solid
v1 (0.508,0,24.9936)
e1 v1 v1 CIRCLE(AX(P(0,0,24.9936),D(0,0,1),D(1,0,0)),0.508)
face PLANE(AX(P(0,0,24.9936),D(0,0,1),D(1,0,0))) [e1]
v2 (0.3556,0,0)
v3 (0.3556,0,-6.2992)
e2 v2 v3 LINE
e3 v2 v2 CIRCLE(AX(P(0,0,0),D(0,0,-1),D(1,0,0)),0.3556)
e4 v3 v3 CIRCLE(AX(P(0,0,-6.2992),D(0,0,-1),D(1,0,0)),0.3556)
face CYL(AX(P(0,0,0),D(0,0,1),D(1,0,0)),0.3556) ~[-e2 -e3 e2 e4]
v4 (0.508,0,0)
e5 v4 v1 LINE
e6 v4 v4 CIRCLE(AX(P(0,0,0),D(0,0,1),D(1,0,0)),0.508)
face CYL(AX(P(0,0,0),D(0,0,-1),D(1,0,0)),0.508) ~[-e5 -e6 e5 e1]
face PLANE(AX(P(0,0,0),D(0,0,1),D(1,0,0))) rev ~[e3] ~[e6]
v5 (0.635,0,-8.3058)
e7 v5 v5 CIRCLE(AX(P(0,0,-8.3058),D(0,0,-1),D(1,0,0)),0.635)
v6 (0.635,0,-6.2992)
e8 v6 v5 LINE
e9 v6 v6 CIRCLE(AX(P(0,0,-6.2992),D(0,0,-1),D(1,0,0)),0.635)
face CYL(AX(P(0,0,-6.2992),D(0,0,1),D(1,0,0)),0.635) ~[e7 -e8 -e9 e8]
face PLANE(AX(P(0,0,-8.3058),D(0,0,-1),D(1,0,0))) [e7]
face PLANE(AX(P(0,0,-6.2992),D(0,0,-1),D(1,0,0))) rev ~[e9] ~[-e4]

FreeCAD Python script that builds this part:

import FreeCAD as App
import Part
import Sketcher
from FreeCAD import Vector
Q = App.Units.Quantity

doc = App.newDocument("Part")
params = doc.addObject("Spreadsheet::Sheet", "Params")
for row, (alias, value) in enumerate([
    ("sketch1_diameter", "0.04 in"),
    ("pad1_length", "0.984 in"),
    ("sketch2_diameter", "0.028 in"),
    ("pad2_length", "0.248 in"),
    ("sketch3_diameter", "0.05 in"),
    ("pad3_length", "0.079 in"),
], start=1):
    params.set(f"A{row}", alias)
    params.set(f"B{row}", "=" + value)
    params.setAlias(f"B{row}", alias)

body = doc.addObject("PartDesign::Body", "Body")

sketch1 = body.newObject("Sketcher::SketchObject", "Sketch")
sketch1.AttachmentSupport = (doc.getObject("XY_Plane"), [""])
sketch1.MapMode = "FlatFace"
sketch1.addGeometry(Part.Circle(Vector(0, 0, 0), Vector(0, 0, 1), 0.5), False)
sketch1.addConstraint([
    Sketcher.Constraint("Coincident", 0, 3, -1, 1),
    Sketcher.Constraint("Diameter", 0, Q("0.04 in")),
])
sketch1.setExpression("Constraints[1]", "Params.sketch1_diameter")
pad1 = body.newObject("PartDesign::Pad", "Pad")
pad1.Profile = sketch1
pad1.setExpression("Length", "Params.pad1_length")

sketch2 = body.newObject("Sketcher::SketchObject", "Sketch001")
sketch2.AttachmentSupport = (doc.getObject("XY_Plane"), [""])
sketch2.MapMode = "FlatFace"
sketch2.addGeometry(Part.Circle(Vector(0, 0, 0), Vector(0, 0, 1), 0.36), False)
sketch2.addConstraint([
    Sketcher.Constraint("Coincident", 0, 3, -1, 1),
    Sketcher.Constraint("Diameter", 0, Q("0.028 in")),
])
sketch2.setExpression("Constraints[1]", "Params.sketch2_diameter")
pad2 = body.newObject("PartDesign::Pad", "Pad001")
pad2.Profile = sketch2
pad2.setExpression("Length", "Params.pad2_length")
pad2.Reversed = True

sketch3 = body.newObject("Sketcher::SketchObject", "Sketch002")
sketch3.AttachmentSupport = (doc.getObject("XY_Plane"), [""])
sketch3.MapMode = "FlatFace"
sketch3.AttachmentOffset = App.Placement(Vector(0, 0, -0.248 * 25.4), App.Rotation())
sketch3.addGeometry(Part.Circle(Vector(0, 0, 0), Vector(0, 0, 1), 0.6), False)
sketch3.addConstraint([
    Sketcher.Constraint("Coincident", 0, 3, -1, 1),
    Sketcher.Constraint("Diameter", 0, Q("0.05 in")),
])
sketch3.setExpression("Constraints[1]", "Params.sketch3_diameter")
pad3 = body.newObject("PartDesign::Pad", "Pad002")
pad3.Profile = sketch3
pad3.setExpression("Length", "Params.pad3_length")
pad3.Reversed = True

doc.recompute()
